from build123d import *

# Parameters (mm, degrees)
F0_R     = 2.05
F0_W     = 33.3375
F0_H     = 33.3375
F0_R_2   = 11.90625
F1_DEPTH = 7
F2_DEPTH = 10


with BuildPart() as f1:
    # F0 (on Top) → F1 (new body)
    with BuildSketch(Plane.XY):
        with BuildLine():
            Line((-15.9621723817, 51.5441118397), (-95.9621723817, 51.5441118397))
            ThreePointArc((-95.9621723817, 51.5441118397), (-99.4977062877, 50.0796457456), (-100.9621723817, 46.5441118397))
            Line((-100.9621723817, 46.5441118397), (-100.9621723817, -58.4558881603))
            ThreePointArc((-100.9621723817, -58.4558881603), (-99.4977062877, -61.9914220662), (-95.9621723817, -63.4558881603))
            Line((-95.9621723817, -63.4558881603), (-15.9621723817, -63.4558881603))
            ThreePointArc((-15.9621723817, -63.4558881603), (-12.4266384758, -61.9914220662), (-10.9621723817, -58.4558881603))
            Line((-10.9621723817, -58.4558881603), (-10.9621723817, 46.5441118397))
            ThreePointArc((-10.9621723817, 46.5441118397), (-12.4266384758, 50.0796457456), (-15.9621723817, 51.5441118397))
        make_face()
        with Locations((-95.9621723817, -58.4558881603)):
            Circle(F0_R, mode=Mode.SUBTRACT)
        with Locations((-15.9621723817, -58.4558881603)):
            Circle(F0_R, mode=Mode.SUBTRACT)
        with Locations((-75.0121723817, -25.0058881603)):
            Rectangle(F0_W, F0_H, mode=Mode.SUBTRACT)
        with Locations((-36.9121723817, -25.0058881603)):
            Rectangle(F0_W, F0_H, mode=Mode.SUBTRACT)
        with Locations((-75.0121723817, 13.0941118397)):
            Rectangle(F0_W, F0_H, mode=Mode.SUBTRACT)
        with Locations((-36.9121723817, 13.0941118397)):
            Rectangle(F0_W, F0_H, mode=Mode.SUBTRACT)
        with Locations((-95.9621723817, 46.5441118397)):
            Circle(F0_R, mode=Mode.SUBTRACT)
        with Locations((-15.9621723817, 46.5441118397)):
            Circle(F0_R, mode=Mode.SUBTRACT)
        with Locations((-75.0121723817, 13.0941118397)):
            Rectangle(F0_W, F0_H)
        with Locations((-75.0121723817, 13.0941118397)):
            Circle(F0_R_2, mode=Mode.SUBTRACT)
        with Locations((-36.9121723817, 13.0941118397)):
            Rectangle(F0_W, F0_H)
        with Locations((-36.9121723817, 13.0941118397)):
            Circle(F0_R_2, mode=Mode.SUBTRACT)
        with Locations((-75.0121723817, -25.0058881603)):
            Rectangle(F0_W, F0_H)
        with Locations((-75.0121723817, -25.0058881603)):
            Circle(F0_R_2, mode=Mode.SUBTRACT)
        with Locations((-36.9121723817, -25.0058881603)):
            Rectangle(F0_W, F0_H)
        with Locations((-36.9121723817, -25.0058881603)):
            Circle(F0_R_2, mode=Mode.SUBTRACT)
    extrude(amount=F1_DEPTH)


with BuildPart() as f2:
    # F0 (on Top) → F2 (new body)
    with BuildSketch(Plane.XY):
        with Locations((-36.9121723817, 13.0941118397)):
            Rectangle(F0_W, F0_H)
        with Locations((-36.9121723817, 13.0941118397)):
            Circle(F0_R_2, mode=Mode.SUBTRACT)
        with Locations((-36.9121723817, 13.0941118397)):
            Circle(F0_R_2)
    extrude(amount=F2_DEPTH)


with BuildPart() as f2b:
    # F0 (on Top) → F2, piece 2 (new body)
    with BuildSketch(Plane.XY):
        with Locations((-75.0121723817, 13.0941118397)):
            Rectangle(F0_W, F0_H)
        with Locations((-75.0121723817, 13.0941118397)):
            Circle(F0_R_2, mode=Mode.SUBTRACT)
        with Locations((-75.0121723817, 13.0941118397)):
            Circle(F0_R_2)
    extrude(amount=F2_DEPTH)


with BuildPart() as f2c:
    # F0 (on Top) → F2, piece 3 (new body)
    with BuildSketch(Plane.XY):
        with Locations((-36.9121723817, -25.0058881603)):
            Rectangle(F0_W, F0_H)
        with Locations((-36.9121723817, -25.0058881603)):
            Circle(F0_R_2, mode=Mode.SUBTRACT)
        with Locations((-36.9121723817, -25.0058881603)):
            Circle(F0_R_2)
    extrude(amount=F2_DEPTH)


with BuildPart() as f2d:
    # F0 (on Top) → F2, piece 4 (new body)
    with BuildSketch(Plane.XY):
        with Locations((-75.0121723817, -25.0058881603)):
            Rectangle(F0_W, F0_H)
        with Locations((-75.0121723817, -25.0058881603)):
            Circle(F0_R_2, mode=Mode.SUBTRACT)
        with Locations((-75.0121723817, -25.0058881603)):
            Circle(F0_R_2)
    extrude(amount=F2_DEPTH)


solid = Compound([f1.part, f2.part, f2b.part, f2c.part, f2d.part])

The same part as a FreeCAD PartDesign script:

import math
import FreeCAD as App
import Part
import Sketcher
from FreeCAD import Vector
Q = App.Units.Quantity

doc = App.newDocument("Part")
body = doc.addObject("PartDesign::Body", "Body")

# Sketch on XY plane
sketch1 = doc.addObject("Sketcher::SketchObject", "Sketch")
body.addObject(sketch1)
sketch1.AttachmentSupport = (doc.XY_Plane, [""])
sketch1.MapMode = "FlatFace"
sketch1.addGeometry([
    Part.LineSegment(Vector(-16, 51.5, 0), Vector(-96, 51.5, 0)),  # 0
    Part.ArcOfCircle(Part.Circle(Vector(-96, 46.5, 0), Vector(0, 0, 1), 5), math.radians(90), math.radians(180)),  # 1
    Part.LineSegment(Vector(-101, 46.5, 0), Vector(-101, -58.5, 0)),  # 2
    Part.ArcOfCircle(Part.Circle(Vector(-96, -58.5, 0), Vector(0, 0, 1), 5), math.radians(180), math.radians(270)),  # 3
    Part.LineSegment(Vector(-96, -63.5, 0), Vector(-16, -63.5, 0)),  # 4
    Part.ArcOfCircle(Part.Circle(Vector(-16, -58.5, 0), Vector(0, 0, 1), 5), math.radians(-90), math.radians(0)),  # 5
    Part.LineSegment(Vector(-11, -58.5, 0), Vector(-11, 46.5, 0)),  # 6
    Part.ArcOfCircle(Part.Circle(Vector(-16, 46.5, 0), Vector(0, 0, 1), 5), math.radians(0), math.radians(90)),  # 7
    Part.Circle(Vector(-96, -58.5, 0), Vector(0, 0, 1), 2),  # 8
    Part.Circle(Vector(-75, -25, 0), Vector(0, 0, 1), 11.9),  # 9
    Part.Circle(Vector(-16, -58.5, 0), Vector(0, 0, 1), 2),  # 10
    Part.Circle(Vector(-36.9, -25, 0), Vector(0, 0, 1), 11.9),  # 11
    Part.Circle(Vector(-75, 13.1, 0), Vector(0, 0, 1), 11.9),  # 12
    Part.Circle(Vector(-96, 46.5, 0), Vector(0, 0, 1), 2),  # 13
    Part.Circle(Vector(-36.9, 13.1, 0), Vector(0, 0, 1), 11.9),  # 14
    Part.Circle(Vector(-16, 46.5, 0), Vector(0, 0, 1), 2),  # 15
], False)
sketch1.addConstraint([
    Sketcher.Constraint("Tangent", 0, 2, 1, 1),
    Sketcher.Constraint("Tangent", 1, 2, 2, 1),
    Sketcher.Constraint("Tangent", 2, 2, 3, 1),
    Sketcher.Constraint("Tangent", 3, 2, 4, 1),
    Sketcher.Constraint("Tangent", 4, 2, 5, 1),
    Sketcher.Constraint("Tangent", 5, 2, 6, 1),
    Sketcher.Constraint("Tangent", 6, 2, 7, 1),
    Sketcher.Constraint("Tangent", 7, 2, 0, 1),
    Sketcher.Constraint("Horizontal", 0),
    Sketcher.Constraint("Vertical", 2),
    Sketcher.Constraint("Horizontal", 4),
    Sketcher.Constraint("Vertical", 6),
    Sketcher.Constraint("Coincident", 8, 3, 3, 3),
    Sketcher.Constraint("Coincident", 10, 3, 5, 3),
    Sketcher.Constraint("Coincident", 13, 3, 1, 3),
    Sketcher.Constraint("Coincident", 15, 3, 7, 3),
    Sketcher.Constraint("Equal", 1, 3),
    Sketcher.Constraint("Equal", 3, 5),
    Sketcher.Constraint("Equal", 5, 7),
    Sketcher.Constraint("Equal", 8, 10),
    Sketcher.Constraint("Equal", 9, 11),
    Sketcher.Constraint("Equal", 11, 12),
    Sketcher.Constraint("Equal", 10, 13),
    Sketcher.Constraint("Equal", 12, 14),
    Sketcher.Constraint("Equal", 13, 15),
    Sketcher.Constraint("Horizontal", 9, 3, 11, 3),
    Sketcher.Constraint("Horizontal", 12, 3, 14, 3),
    Sketcher.Constraint("Vertical", 9, 3, 12, 3),
    Sketcher.Constraint("Vertical", 11, 3, 14, 3),
    Sketcher.Constraint("Radius", 1, Q("5 mm")),
    Sketcher.Constraint("Diameter", 8, Q("4.1 mm")),
    Sketcher.Constraint("DistanceX", 0, 2, 0, 1, Q("80 mm")),
    Sketcher.Constraint("DistanceY", 2, 2, 2, 1, Q("105 mm")),
    Sketcher.Constraint("Diameter", 9, Q("23.8125 mm")),
    Sketcher.Constraint("DistanceX", 9, 3, 11, 3, Q("38.1 mm")),
    Sketcher.Constraint("DistanceY", 9, 3, 12, 3, Q("38.1 mm")),
    Sketcher.Constraint("DistanceX", 3, 3, 9, 3, Q("20.95 mm")),
    Sketcher.Constraint("DistanceY", 3, 3, 9, 3, Q("33.45 mm")),
    Sketcher.Constraint("DistanceY", -1, 1, 1, 3, Q("46.544112 mm")),
    Sketcher.Constraint("DistanceX", 1, 3, -1, 1, Q("95.962172 mm")),
])
pad1 = doc.addObject("PartDesign::Pad", "Pad")
body.addObject(pad1)
pad1.Profile = sketch1
pad1.Length = 7
body2 = doc.addObject("PartDesign::Body", "Body001")

# Sketch on XY plane
sketch2 = doc.addObject("Sketcher::SketchObject", "Sketch001")
body2.addObject(sketch2)
sketch2.AttachmentSupport = (doc.getObject("XY_Plane001"), [""])
sketch2.MapMode = "FlatFace"
sketch2.addGeometry([
    Part.LineSegment(Vector(-54, 30, 0), Vector(-54, -4, 0)),
    Part.LineSegment(Vector(-54, -4, 0), Vector(-20, -4, 0)),
    Part.LineSegment(Vector(-20, -4, 0), Vector(-20, 30, 0)),
    Part.LineSegment(Vector(-20, 30, 0), Vector(-54, 30, 0)),
], False)
sketch2.addConstraint([
    Sketcher.Constraint("Coincident", 0, 2, 1, 1),
    Sketcher.Constraint("Coincident", 1, 2, 2, 1),
    Sketcher.Constraint("Coincident", 2, 2, 3, 1),
    Sketcher.Constraint("Coincident", 3, 2, 0, 1),
    Sketcher.Constraint("Vertical", 0),
    Sketcher.Constraint("Horizontal", 1),
    Sketcher.Constraint("Vertical", 2),
    Sketcher.Constraint("Horizontal", 3),
    Sketcher.Constraint("Equal", 3, 0),
    Sketcher.Constraint("DistanceX", 1, 1, 1, 2, Q("33.3375 mm")),
    Sketcher.Constraint("DistanceY", 0, 2, -1, 1, Q("3.574638 mm")),
    Sketcher.Constraint("DistanceX", 0, 2, -1, 1, Q("53.580922 mm")),
])
pad2 = doc.addObject("PartDesign::Pad", "Pad001")
body2.addObject(pad2)
pad2.Profile = sketch2
pad2.Length = 10
body3 = doc.addObject("PartDesign::Body", "Body002")

# Sketch on XY plane
sketch3 = doc.addObject("Sketcher::SketchObject", "Sketch002")
body3.addObject(sketch3)
sketch3.AttachmentSupport = (doc.getObject("XY_Plane002"), [""])
sketch3.MapMode = "FlatFace"
sketch3.addGeometry([
    Part.LineSegment(Vector(-92, 30, 0), Vector(-92, -4, 0)),
    Part.LineSegment(Vector(-92, -4, 0), Vector(-58, -4, 0)),
    Part.LineSegment(Vector(-58, -4, 0), Vector(-58, 30, 0)),
    Part.LineSegment(Vector(-58, 30, 0), Vector(-92, 30, 0)),
], False)
sketch3.addConstraint([
    Sketcher.Constraint("Coincident", 0, 2, 1, 1),
    Sketcher.Constraint("Coincident", 1, 2, 2, 1),
    Sketcher.Constraint("Coincident", 2, 2, 3, 1),
    Sketcher.Constraint("Coincident", 3, 2, 0, 1),
    Sketcher.Constraint("Vertical", 0),
    Sketcher.Constraint("Horizontal", 1),
    Sketcher.Constraint("Vertical", 2),
    Sketcher.Constraint("Horizontal", 3),
    Sketcher.Constraint("Equal", 3, 0),
    Sketcher.Constraint("DistanceX", 1, 1, 1, 2, Q("33.3375 mm")),
    Sketcher.Constraint("DistanceY", 0, 2, -1, 1, Q("3.574638 mm")),
    Sketcher.Constraint("DistanceX", 0, 2, -1, 1, Q("91.680922 mm")),
])
pad3 = doc.addObject("PartDesign::Pad", "Pad002")
body3.addObject(pad3)
pad3.Profile = sketch3
pad3.Length = 10
body4 = doc.addObject("PartDesign::Body", "Body003")

# Sketch on XY plane
sketch4 = doc.addObject("Sketcher::SketchObject", "Sketch003")
body4.addObject(sketch4)
sketch4.AttachmentSupport = (doc.getObject("XY_Plane003"), [""])
sketch4.MapMode = "FlatFace"
sketch4.addGeometry([
    Part.LineSegment(Vector(-54, -8, 0), Vector(-54, -42, 0)),
    Part.LineSegment(Vector(-54, -42, 0), Vector(-20, -42, 0)),
    Part.LineSegment(Vector(-20, -42, 0), Vector(-20, -8, 0)),
    Part.LineSegment(Vector(-20, -8, 0), Vector(-54, -8, 0)),
], False)
sketch4.addConstraint([
    Sketcher.Constraint("Coincident", 0, 2, 1, 1),
    Sketcher.Constraint("Coincident", 1, 2, 2, 1),
    Sketcher.Constraint("Coincident", 2, 2, 3, 1),
    Sketcher.Constraint("Coincident", 3, 2, 0, 1),
    Sketcher.Constraint("Vertical", 0),
    Sketcher.Constraint("Horizontal", 1),
    Sketcher.Constraint("Vertical", 2),
    Sketcher.Constraint("Horizontal", 3),
    Sketcher.Constraint("Equal", 3, 0),
    Sketcher.Constraint("DistanceX", 1, 1, 1, 2, Q("33.3375 mm")),
    Sketcher.Constraint("DistanceY", 0, 2, -1, 1, Q("41.674638 mm")),
    Sketcher.Constraint("DistanceX", 0, 2, -1, 1, Q("53.580922 mm")),
])
pad4 = doc.addObject("PartDesign::Pad", "Pad003")
body4.addObject(pad4)
pad4.Profile = sketch4
pad4.Length = 10
body5 = doc.addObject("PartDesign::Body", "Body004")

# Sketch on XY plane
sketch5 = doc.addObject("Sketcher::SketchObject", "Sketch004")
body5.addObject(sketch5)
sketch5.AttachmentSupport = (doc.getObject("XY_Plane004"), [""])
sketch5.MapMode = "FlatFace"
sketch5.addGeometry([
    Part.LineSegment(Vector(-92, -8, 0), Vector(-92, -42, 0)),
    Part.LineSegment(Vector(-92, -42, 0), Vector(-58, -42, 0)),
    Part.LineSegment(Vector(-58, -42, 0), Vector(-58, -8, 0)),
    Part.LineSegment(Vector(-58, -8, 0), Vector(-92, -8, 0)),
], False)
sketch5.addConstraint([
    Sketcher.Constraint("Coincident", 0, 2, 1, 1),
    Sketcher.Constraint("Coincident", 1, 2, 2, 1),
    Sketcher.Constraint("Coincident", 2, 2, 3, 1),
    Sketcher.Constraint("Coincident", 3, 2, 0, 1),
    Sketcher.Constraint("Vertical", 0),
    Sketcher.Constraint("Horizontal", 1),
    Sketcher.Constraint("Vertical", 2),
    Sketcher.Constraint("Horizontal", 3),
    Sketcher.Constraint("Equal", 3, 0),
    Sketcher.Constraint("DistanceX", 1, 1, 1, 2, Q("33.3375 mm")),
    Sketcher.Constraint("DistanceY", 0, 2, -1, 1, Q("41.674638 mm")),
    Sketcher.Constraint("DistanceX", 0, 2, -1, 1, Q("91.680922 mm")),
])
pad5 = doc.addObject("PartDesign::Pad", "Pad004")
body5.addObject(pad5)
pad5.Profile = sketch5
pad5.Length = 10

doc.recompute()
